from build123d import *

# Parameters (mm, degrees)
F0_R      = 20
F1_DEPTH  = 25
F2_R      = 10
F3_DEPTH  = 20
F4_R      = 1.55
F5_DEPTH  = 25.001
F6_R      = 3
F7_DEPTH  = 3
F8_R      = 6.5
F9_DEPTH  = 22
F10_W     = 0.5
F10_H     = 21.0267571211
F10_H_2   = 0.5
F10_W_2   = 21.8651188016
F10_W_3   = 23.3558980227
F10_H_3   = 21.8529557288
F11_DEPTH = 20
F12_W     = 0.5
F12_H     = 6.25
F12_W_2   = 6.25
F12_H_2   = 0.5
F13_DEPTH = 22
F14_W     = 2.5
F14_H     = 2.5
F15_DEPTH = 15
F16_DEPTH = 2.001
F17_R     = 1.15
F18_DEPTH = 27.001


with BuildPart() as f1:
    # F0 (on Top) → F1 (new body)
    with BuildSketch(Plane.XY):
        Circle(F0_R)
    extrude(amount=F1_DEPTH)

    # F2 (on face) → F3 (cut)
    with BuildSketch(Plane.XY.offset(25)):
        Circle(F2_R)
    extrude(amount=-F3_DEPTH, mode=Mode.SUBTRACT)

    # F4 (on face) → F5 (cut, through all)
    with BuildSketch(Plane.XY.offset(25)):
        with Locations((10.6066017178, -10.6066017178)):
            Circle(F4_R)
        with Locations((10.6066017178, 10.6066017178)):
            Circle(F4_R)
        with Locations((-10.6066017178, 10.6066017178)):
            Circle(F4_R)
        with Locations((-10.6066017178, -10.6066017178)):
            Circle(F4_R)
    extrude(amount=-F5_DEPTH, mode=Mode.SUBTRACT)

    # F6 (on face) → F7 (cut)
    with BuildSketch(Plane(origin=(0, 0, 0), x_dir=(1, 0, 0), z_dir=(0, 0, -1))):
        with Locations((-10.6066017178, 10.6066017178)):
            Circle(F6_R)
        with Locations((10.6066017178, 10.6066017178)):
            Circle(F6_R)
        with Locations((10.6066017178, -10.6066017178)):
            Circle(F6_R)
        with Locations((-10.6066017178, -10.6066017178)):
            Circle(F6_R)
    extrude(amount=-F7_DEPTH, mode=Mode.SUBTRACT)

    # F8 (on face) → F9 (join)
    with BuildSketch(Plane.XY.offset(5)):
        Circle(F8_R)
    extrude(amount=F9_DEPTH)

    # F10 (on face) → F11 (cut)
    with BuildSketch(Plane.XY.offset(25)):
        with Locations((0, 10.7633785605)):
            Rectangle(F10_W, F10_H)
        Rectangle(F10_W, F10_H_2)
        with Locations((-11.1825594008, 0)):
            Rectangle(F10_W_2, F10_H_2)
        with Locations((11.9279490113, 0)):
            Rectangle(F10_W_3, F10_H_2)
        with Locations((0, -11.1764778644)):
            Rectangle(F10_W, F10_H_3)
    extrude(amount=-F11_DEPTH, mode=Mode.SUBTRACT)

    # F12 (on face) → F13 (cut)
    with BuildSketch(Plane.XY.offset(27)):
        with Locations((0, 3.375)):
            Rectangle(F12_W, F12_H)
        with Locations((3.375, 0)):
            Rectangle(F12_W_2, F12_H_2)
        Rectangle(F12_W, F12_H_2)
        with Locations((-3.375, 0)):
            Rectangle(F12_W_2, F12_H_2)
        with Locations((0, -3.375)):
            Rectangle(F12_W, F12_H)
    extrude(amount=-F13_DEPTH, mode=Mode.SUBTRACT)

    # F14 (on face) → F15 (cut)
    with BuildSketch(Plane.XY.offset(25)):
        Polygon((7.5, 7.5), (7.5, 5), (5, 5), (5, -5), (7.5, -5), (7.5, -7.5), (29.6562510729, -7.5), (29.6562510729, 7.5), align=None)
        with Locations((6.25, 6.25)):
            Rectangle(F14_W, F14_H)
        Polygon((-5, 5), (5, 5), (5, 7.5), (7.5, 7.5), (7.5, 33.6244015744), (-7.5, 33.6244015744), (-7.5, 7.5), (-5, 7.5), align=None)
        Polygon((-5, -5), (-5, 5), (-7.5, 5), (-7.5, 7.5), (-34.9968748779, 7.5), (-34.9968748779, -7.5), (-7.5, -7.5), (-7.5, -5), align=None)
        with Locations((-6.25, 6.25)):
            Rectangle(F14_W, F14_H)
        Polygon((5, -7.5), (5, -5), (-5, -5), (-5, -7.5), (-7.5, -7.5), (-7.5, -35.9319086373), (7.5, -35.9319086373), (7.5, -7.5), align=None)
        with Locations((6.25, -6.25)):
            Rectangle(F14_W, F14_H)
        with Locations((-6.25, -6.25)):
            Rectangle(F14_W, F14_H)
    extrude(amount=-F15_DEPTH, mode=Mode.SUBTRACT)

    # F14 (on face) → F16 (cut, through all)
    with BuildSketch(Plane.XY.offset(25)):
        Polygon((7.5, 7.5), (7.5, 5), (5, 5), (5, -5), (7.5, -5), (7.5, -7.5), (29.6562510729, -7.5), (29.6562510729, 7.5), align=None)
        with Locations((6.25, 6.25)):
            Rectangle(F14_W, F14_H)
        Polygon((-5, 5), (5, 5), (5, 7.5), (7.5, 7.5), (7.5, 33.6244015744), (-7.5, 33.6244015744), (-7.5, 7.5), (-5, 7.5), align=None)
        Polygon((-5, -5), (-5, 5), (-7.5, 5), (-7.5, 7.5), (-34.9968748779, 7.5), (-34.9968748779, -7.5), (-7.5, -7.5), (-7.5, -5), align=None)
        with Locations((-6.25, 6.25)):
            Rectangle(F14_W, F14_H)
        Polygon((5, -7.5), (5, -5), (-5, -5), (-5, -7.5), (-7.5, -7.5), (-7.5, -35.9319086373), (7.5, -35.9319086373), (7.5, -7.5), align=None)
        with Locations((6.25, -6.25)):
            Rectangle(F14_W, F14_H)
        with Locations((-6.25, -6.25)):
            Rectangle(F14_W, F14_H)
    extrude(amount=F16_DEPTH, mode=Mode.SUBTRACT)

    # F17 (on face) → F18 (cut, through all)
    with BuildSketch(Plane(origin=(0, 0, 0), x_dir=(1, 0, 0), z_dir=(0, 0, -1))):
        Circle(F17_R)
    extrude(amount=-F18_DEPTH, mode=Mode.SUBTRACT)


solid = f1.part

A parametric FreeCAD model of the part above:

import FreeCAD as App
import Part
import Sketcher


def add_polygon(sketch, points):
    """Adds a closed chain of lines whose ends are joined by coincident constraints."""
    first, n = sketch.GeometryCount, len(points)
    for a, b in zip(points, points[1:] + points[:1]):
        sketch.addGeometry(Part.LineSegment(App.Vector(*a, 0), App.Vector(*b, 0)), False)
    for i in range(n):
        sketch.addConstraint(Sketcher.Constraint("Coincident", first + i, 2, first + (i + 1) % n, 1))

doc = App.newDocument("Part")
params = doc.addObject("Spreadsheet::Sheet", "Params")
for row, (alias, value) in enumerate([
    ("sketch1_diameter", "40 mm"),
    ("pad1_length", "25 mm"),
    ("sketch2_diameter", "20 mm"),
    ("pocket1_length", "20 mm"),
    ("sketch3_diameter", "3.1 mm"),
    ("sketch4_diameter", "6 mm"),
    ("pocket3_length", "3 mm"),
    ("sketch5_diameter", "13 mm"),
    ("pad2_length", "22 mm"),
    ("sketch6_width", "0.5 mm"),
    ("pocket4_length", "20 mm"),
    ("sketch7_width", "0.5 mm"),
    ("sketch7_width2", "6.25 mm"),
    ("pocket5_length", "22 mm"),
    ("sketch8_width", "15 mm"),
    ("sketch8_width2", "10 mm"),
    ("pocket6_length", "15 mm"),
    ("sketch9_width", "15 mm"),
    ("sketch9_width2", "10 mm"),
    ("sketch10_diameter", "2.3 mm"),
], start=1):
    params.set(f"A{row}", alias)
    params.set(f"B{row}", "=" + value)
    params.setAlias(f"B{row}", alias)

body = doc.addObject("PartDesign::Body", "Body")

sketch1 = body.newObject("Sketcher::SketchObject", "Sketch")
sketch1.AttachmentSupport = (doc.getObject("XY_Plane"), [""])
sketch1.MapMode = "FlatFace"
sketch1.addGeometry(Part.Circle(App.Vector(0, 0, 0), App.Vector(0, 0, 1), 20), False)
sketch1.addConstraint([
    Sketcher.Constraint("Coincident", 0, 3, -1, 1),
    Sketcher.Constraint("Diameter", 0, 40.0),
])
sketch1.setExpression("Constraints[1]", "Params.sketch1_diameter")
pad1 = body.newObject("PartDesign::Pad", "Pad")
pad1.Profile = sketch1
pad1.setExpression("Length", "Params.pad1_length")

sketch2 = body.newObject("Sketcher::SketchObject", "Sketch001")
sketch2.AttachmentSupport = (doc.getObject("XY_Plane"), [""])
sketch2.MapMode = "FlatFace"
sketch2.AttachmentOffset = App.Placement(App.Vector(0, 0, 25), App.Rotation())
sketch2.addGeometry(Part.Circle(App.Vector(0, 0, 0), App.Vector(0, 0, 1), 10), False)
sketch2.addConstraint([
    Sketcher.Constraint("Coincident", 0, 3, -1, 1),
    Sketcher.Constraint("Diameter", 0, 20.0),
])
sketch2.setExpression("Constraints[1]", "Params.sketch2_diameter")
pocket1 = body.newObject("PartDesign::Pocket", "Pocket")
pocket1.Profile = sketch2
pocket1.setExpression("Length", "Params.pocket1_length")

sketch3 = body.newObject("Sketcher::SketchObject", "Sketch002")
sketch3.AttachmentSupport = (doc.getObject("XY_Plane"), [""])
sketch3.MapMode = "FlatFace"
sketch3.AttachmentOffset = App.Placement(App.Vector(0, 0, 25), App.Rotation())
sketch3.addGeometry([
    Part.Circle(App.Vector(10.6, -10.6, 0), App.Vector(0, 0, 1), 1.6),
    Part.Circle(App.Vector(10.6, 10.6, 0), App.Vector(0, 0, 1), 1.6),
    Part.Circle(App.Vector(-10.6, 10.6, 0), App.Vector(0, 0, 1), 1.6),
    Part.Circle(App.Vector(-10.6, -10.6, 0), App.Vector(0, 0, 1), 1.6),
], False)
sketch3.addConstraint([
    Sketcher.Constraint("Equal", 0, 1),
    Sketcher.Constraint("Equal", 1, 2),
    Sketcher.Constraint("Equal", 2, 3),
    Sketcher.Constraint("Symmetric", 0, 3, 2, 3, -1, 1),
    Sketcher.Constraint("Symmetric", 1, 3, 3, 3, -1, 1),
    Sketcher.Constraint("Symmetric", 1, 3, 2, 3, -2),
    Sketcher.Constraint("Diameter", 0, 3.1),
    Sketcher.Constraint("DistanceX", -1, 1, 0, 3, 10.606602),
    Sketcher.Constraint("DistanceY", 0, 3, -1, 1, 10.606602),
])
sketch3.setExpression("Constraints[6]", "Params.sketch3_diameter")
pocket2 = body.newObject("PartDesign::Pocket", "Pocket001")
pocket2.Profile = sketch3
pocket2.Type = "ThroughAll"

sketch4 = body.newObject("Sketcher::SketchObject", "Sketch003")
sketch4.AttachmentSupport = (doc.getObject("XY_Plane"), [""])
sketch4.MapMode = "FlatFace"
sketch4.addGeometry([
    Part.Circle(App.Vector(-10.6, -10.6, 0), App.Vector(0, 0, 1), 3),
    Part.Circle(App.Vector(10.6, -10.6, 0), App.Vector(0, 0, 1), 3),
    Part.Circle(App.Vector(10.6, 10.6, 0), App.Vector(0, 0, 1), 3),
    Part.Circle(App.Vector(-10.6, 10.6, 0), App.Vector(0, 0, 1), 3),
], False)
sketch4.addConstraint([
    Sketcher.Constraint("Equal", 0, 1),
    Sketcher.Constraint("Equal", 1, 2),
    Sketcher.Constraint("Equal", 2, 3),
    Sketcher.Constraint("Symmetric", 0, 3, 2, 3, -1, 1),
    Sketcher.Constraint("Symmetric", 1, 3, 3, 3, -1, 1),
    Sketcher.Constraint("Symmetric", 0, 3, 1, 3, -2),
    Sketcher.Constraint("Diameter", 0, 6.0),
    Sketcher.Constraint("DistanceX", 0, 3, -1, 1, 10.606602),
    Sketcher.Constraint("DistanceY", 0, 3, -1, 1, 10.606602),
])
sketch4.setExpression("Constraints[6]", "Params.sketch4_diameter")
pocket3 = body.newObject("PartDesign::Pocket", "Pocket002")
pocket3.Profile = sketch4
pocket3.setExpression("Length", "Params.pocket3_length")
pocket3.Reversed = True

sketch5 = body.newObject("Sketcher::SketchObject", "Sketch004")
sketch5.AttachmentSupport = (doc.getObject("XY_Plane"), [""])
sketch5.MapMode = "FlatFace"
sketch5.AttachmentOffset = App.Placement(App.Vector(0, 0, 5), App.Rotation())
sketch5.addGeometry(Part.Circle(App.Vector(0, 0, 0), App.Vector(0, 0, 1), 6), False)
sketch5.addConstraint([
    Sketcher.Constraint("Coincident", 0, 3, -1, 1),
    Sketcher.Constraint("Diameter", 0, 13.0),
])
sketch5.setExpression("Constraints[1]", "Params.sketch5_diameter")
pad2 = body.newObject("PartDesign::Pad", "Pad001")
pad2.Profile = sketch5
pad2.setExpression("Length", "Params.pad2_length")

sketch6 = body.newObject("Sketcher::SketchObject", "Sketch005")
sketch6.AttachmentSupport = (doc.getObject("XY_Plane"), [""])
sketch6.MapMode = "FlatFace"
sketch6.AttachmentOffset = App.Placement(App.Vector(0, 0, 25), App.Rotation())
add_polygon(sketch6, [(-0.2, 21.3), (-0.2, 0.2), (-22.1, 0.2), (-22.1, -0.2), (-0.2, -0.2), (-0.2, -22.1), (0.2, -22.1), (0.2, -0.2), (23.6, -0.2), (23.6, 0.2), (0.2, 0.2), (0.2, 21.3)])
sketch6.addConstraint([
    Sketcher.Constraint("Vertical", 0),
    Sketcher.Constraint("Horizontal", 1),
    Sketcher.Constraint("Vertical", 2),
    Sketcher.Constraint("Horizontal", 3),
    Sketcher.Constraint("Vertical", 4),
    Sketcher.Constraint("Horizontal", 5),
    Sketcher.Constraint("Vertical", 6),
    Sketcher.Constraint("Horizontal", 7),
    Sketcher.Constraint("Vertical", 8),
    Sketcher.Constraint("Horizontal", 9),
    Sketcher.Constraint("Vertical", 10),
    Sketcher.Constraint("Horizontal", 11),
    Sketcher.Constraint("Symmetric", 0, 2, 6, 2, -1, 1),
    Sketcher.Constraint("Symmetric", 3, 2, 9, 2, -1, 1),
    Sketcher.Constraint("Symmetric", 3, 2, 6, 2, -2),
    Sketcher.Constraint("Equal", 11, 2),
    Sketcher.Constraint("DistanceX", 5, 1, 5, 2, 0.5),
    Sketcher.Constraint("DistanceX", 7, 1, 7, 2, 23.355898),
    Sketcher.Constraint("DistanceX", 1, 2, 1, 1, 21.865119),
    Sketcher.Constraint("DistanceY", 0, 2, 0, 1, 21.026757),
    Sketcher.Constraint("DistanceY", 4, 2, 4, 1, 21.852956),
])
sketch6.setExpression("Constraints[28]", "Params.sketch6_width")
pocket4 = body.newObject("PartDesign::Pocket", "Pocket003")
pocket4.Profile = sketch6
pocket4.setExpression("Length", "Params.pocket4_length")

sketch7 = body.newObject("Sketcher::SketchObject", "Sketch006")
sketch7.AttachmentSupport = (doc.getObject("XY_Plane"), [""])
sketch7.MapMode = "FlatFace"
sketch7.AttachmentOffset = App.Placement(App.Vector(0, 0, 27), App.Rotation())
add_polygon(sketch7, [(-0.2, 6.5), (-0.2, 0.2), (-6.5, 0.2), (-6.5, -0.2), (-0.2, -0.2), (-0.2, -6.5), (0.2, -6.5), (0.2, -0.2), (6.5, -0.2), (6.5, 0.2), (0.2, 0.2), (0.2, 6.5)])
sketch7.addConstraint([
    Sketcher.Constraint("Vertical", 0),
    Sketcher.Constraint("Horizontal", 1),
    Sketcher.Constraint("Vertical", 2),
    Sketcher.Constraint("Horizontal", 3),
    Sketcher.Constraint("Vertical", 4),
    Sketcher.Constraint("Horizontal", 5),
    Sketcher.Constraint("Vertical", 6),
    Sketcher.Constraint("Horizontal", 7),
    Sketcher.Constraint("Vertical", 8),
    Sketcher.Constraint("Horizontal", 9),
    Sketcher.Constraint("Vertical", 10),
    Sketcher.Constraint("Horizontal", 11),
    Sketcher.Constraint("Symmetric", 0, 2, 6, 2, -1, 1),
    Sketcher.Constraint("Symmetric", 2, 2, 8, 2, -1, 1),
    Sketcher.Constraint("Symmetric", 4, 2, 10, 2, -1, 1),
    Sketcher.Constraint("Symmetric", 3, 2, 6, 2, -2),
    Sketcher.Constraint("Equal", 9, 0),
    Sketcher.Constraint("Equal", 11, 2),
    Sketcher.Constraint("DistanceX", 5, 1, 5, 2, 0.5),
    Sketcher.Constraint("DistanceX", 1, 2, 1, 1, 6.25),
])
sketch7.setExpression("Constraints[30]", "Params.sketch7_width")
sketch7.setExpression("Constraints[31]", "Params.sketch7_width2")
pocket5 = body.newObject("PartDesign::Pocket", "Pocket004")
pocket5.Profile = sketch7
pocket5.setExpression("Length", "Params.pocket5_length")

sketch8 = body.newObject("Sketcher::SketchObject", "Sketch007")
sketch8.AttachmentSupport = (doc.getObject("XY_Plane"), [""])
sketch8.MapMode = "FlatFace"
sketch8.AttachmentOffset = App.Placement(App.Vector(0, 0, 25), App.Rotation())
add_polygon(sketch8, [(-35, -8), (-8, -8), (-8, -36), (8, -36), (8, -8), (30, -8), (30, 8), (8, 8), (8, 34), (-8, 34), (-8, 8), (-35, 8)])
add_polygon(sketch8, [(5, -5), (-5, -5), (-5, 5), (5, 5)])
sketch8.addConstraint([
    Sketcher.Constraint("Horizontal", 0),
    Sketcher.Constraint("Vertical", 1),
    Sketcher.Constraint("Horizontal", 2),
    Sketcher.Constraint("Vertical", 3),
    Sketcher.Constraint("Horizontal", 4),
    Sketcher.Constraint("Vertical", 5),
    Sketcher.Constraint("Horizontal", 6),
    Sketcher.Constraint("Vertical", 7),
    Sketcher.Constraint("Horizontal", 8),
    Sketcher.Constraint("Vertical", 9),
    Sketcher.Constraint("Horizontal", 10),
    Sketcher.Constraint("Vertical", 11),
    Sketcher.Constraint("Horizontal", 12),
    Sketcher.Constraint("Vertical", 13),
    Sketcher.Constraint("Horizontal", 14),
    Sketcher.Constraint("Vertical", 15),
    Sketcher.Constraint("Symmetric", 0, 2, 6, 2, -1, 1),
    Sketcher.Constraint("Symmetric", 3, 2, 9, 2, -1, 1),
    Sketcher.Constraint("Symmetric", 12, 2, 14, 2, -1, 1),
    Sketcher.Constraint("Symmetric", 0, 2, 3, 2, -2),
    Sketcher.Constraint("Equal", 8, 5),
    Sketcher.Constraint("Equal", 14, 13),
    Sketcher.Constraint("DistanceX", 2, 1, 2, 2, 15.0),
    Sketcher.Constraint("DistanceX", 12, 2, 12, 1, 10.0),
    Sketcher.Constraint("DistanceY", 7, 1, 7, 2, 26.124402),
    Sketcher.Constraint("DistanceX", 4, 1, 4, 2, 22.156251),
    Sketcher.Constraint("DistanceY", 1, 2, 1, 1, 28.431909),
    Sketcher.Constraint("DistanceX", 0, 1, 0, 2, 27.496875),
])
sketch8.setExpression("Constraints[38]", "Params.sketch8_width")
sketch8.setExpression("Constraints[39]", "Params.sketch8_width2")
pocket6 = body.newObject("PartDesign::Pocket", "Pocket005")
pocket6.Profile = sketch8
pocket6.setExpression("Length", "Params.pocket6_length")

sketch9 = body.newObject("Sketcher::SketchObject", "Sketch008")
sketch9.AttachmentSupport = (doc.getObject("XY_Plane"), [""])
sketch9.MapMode = "FlatFace"
sketch9.AttachmentOffset = App.Placement(App.Vector(0, 0, 25), App.Rotation())
add_polygon(sketch9, [(-35, -8), (-8, -8), (-8, -36), (8, -36), (8, -8), (30, -8), (30, 8), (8, 8), (8, 34), (-8, 34), (-8, 8), (-35, 8)])
add_polygon(sketch9, [(5, -5), (-5, -5), (-5, 5), (5, 5)])
sketch9.addConstraint([
    Sketcher.Constraint("Horizontal", 0),
    Sketcher.Constraint("Vertical", 1),
    Sketcher.Constraint("Horizontal", 2),
    Sketcher.Constraint("Vertical", 3),
    Sketcher.Constraint("Horizontal", 4),
    Sketcher.Constraint("Vertical", 5),
    Sketcher.Constraint("Horizontal", 6),
    Sketcher.Constraint("Vertical", 7),
    Sketcher.Constraint("Horizontal", 8),
    Sketcher.Constraint("Vertical", 9),
    Sketcher.Constraint("Horizontal", 10),
    Sketcher.Constraint("Vertical", 11),
    Sketcher.Constraint("Horizontal", 12),
    Sketcher.Constraint("Vertical", 13),
    Sketcher.Constraint("Horizontal", 14),
    Sketcher.Constraint("Vertical", 15),
    Sketcher.Constraint("Symmetric", 0, 2, 6, 2, -1, 1),
    Sketcher.Constraint("Symmetric", 3, 2, 9, 2, -1, 1),
    Sketcher.Constraint("Symmetric", 12, 2, 14, 2, -1, 1),
    Sketcher.Constraint("Symmetric", 0, 2, 3, 2, -2),
    Sketcher.Constraint("Equal", 8, 5),
    Sketcher.Constraint("Equal", 14, 13),
    Sketcher.Constraint("DistanceX", 2, 1, 2, 2, 15.0),
    Sketcher.Constraint("DistanceX", 12, 2, 12, 1, 10.0),
    Sketcher.Constraint("DistanceY", 7, 1, 7, 2, 26.124402),
    Sketcher.Constraint("DistanceX", 4, 1, 4, 2, 22.156251),
    Sketcher.Constraint("DistanceY", 1, 2, 1, 1, 28.431909),
    Sketcher.Constraint("DistanceX", 0, 1, 0, 2, 27.496875),
])
sketch9.setExpression("Constraints[38]", "Params.sketch9_width")
sketch9.setExpression("Constraints[39]", "Params.sketch9_width2")
pocket7 = body.newObject("PartDesign::Pocket", "Pocket006")
pocket7.Profile = sketch9
pocket7.Type = "ThroughAll"
pocket7.Reversed = True

sketch10 = body.newObject("Sketcher::SketchObject", "Sketch009")
sketch10.AttachmentSupport = (doc.getObject("XY_Plane"), [""])
sketch10.MapMode = "FlatFace"
sketch10.addGeometry(Part.Circle(App.Vector(0, 0, 0), App.Vector(0, 0, 1), 1.1), False)
sketch10.addConstraint([
    Sketcher.Constraint("Coincident", 0, 3, -1, 1),
    Sketcher.Constraint("Diameter", 0, 2.3),
])
sketch10.setExpression("Constraints[1]", "Params.sketch10_diameter")
pocket8 = body.newObject("PartDesign::Pocket", "Pocket007")
pocket8.Profile = sketch10
pocket8.Type = "ThroughAll"
pocket8.Reversed = True

doc.recompute()
